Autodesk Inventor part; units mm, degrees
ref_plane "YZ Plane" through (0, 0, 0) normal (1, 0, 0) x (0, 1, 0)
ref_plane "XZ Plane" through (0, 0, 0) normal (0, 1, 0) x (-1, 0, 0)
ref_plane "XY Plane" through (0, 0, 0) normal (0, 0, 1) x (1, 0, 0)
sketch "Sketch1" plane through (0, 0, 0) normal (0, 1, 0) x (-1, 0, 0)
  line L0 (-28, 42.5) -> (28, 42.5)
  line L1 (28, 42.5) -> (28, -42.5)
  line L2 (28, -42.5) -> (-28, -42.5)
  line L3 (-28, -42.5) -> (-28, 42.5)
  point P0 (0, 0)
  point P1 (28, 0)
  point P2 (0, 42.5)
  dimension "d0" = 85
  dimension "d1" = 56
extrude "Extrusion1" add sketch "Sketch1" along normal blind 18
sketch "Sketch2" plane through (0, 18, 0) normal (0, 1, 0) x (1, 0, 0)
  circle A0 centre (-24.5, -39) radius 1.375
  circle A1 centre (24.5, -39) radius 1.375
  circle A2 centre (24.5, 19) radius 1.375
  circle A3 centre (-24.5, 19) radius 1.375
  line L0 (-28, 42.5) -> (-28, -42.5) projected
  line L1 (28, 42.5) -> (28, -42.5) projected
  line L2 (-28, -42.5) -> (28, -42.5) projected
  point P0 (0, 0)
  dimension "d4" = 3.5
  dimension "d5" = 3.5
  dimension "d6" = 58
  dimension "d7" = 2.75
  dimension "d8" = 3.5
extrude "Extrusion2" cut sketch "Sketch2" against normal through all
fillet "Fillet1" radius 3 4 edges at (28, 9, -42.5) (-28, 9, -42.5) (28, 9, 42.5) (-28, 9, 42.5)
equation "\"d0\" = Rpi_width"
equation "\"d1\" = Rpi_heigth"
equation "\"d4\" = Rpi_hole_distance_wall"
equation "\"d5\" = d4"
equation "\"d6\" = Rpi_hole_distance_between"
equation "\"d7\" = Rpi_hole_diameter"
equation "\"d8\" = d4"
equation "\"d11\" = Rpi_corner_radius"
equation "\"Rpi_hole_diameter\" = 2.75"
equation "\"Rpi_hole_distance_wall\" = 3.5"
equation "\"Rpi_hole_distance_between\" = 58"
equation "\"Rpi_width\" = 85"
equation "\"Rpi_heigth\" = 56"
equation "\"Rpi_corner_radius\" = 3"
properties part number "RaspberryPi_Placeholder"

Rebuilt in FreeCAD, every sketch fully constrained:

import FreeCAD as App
import Part
import Sketcher
from FreeCAD import Vector
Q = App.Units.Quantity


def edges_at(feature, points):
    """Names of the edges that pass closest to the given points."""
    edges = feature.Shape.Edges
    near = lambda p: min(range(len(edges)), key=lambda i: edges[i].distToShape(Part.Vertex(*p))[0])
    return sorted({f"Edge{near(p) + 1}" for p in points})


def add_polygon(sketch, points):
    """Adds a closed chain of lines whose ends are joined by coincident constraints."""
    first, n = sketch.GeometryCount, len(points)
    for a, b in zip(points, points[1:] + points[:1]):
        sketch.addGeometry(Part.LineSegment(App.Vector(*a, 0), App.Vector(*b, 0)), False)
    for i in range(n):
        sketch.addConstraint(Sketcher.Constraint("Coincident", first + i, 2, first + (i + 1) % n, 1))

doc = App.newDocument("Part")
body = doc.addObject("PartDesign::Body", "Body")

# Sketch on XZ plane
sketch1 = body.newObject("Sketcher::SketchObject", "Sketch")
sketch1.AttachmentSupport = (doc.getObject("XZ_Plane"), [""])
sketch1.MapMode = "FlatFace"
add_polygon(sketch1, [(-28, 42), (28, 42), (28, -42), (-28, -42)])  # lines 0-3
sketch1.addConstraint([
    Sketcher.Constraint("Horizontal", 0),
    Sketcher.Constraint("Vertical", 1),
    Sketcher.Constraint("Horizontal", 2),
    Sketcher.Constraint("Vertical", 3),
    Sketcher.Constraint("Symmetric", 0, 2, 2, 2, -1, 1),
    Sketcher.Constraint("DistanceX", 0, 1, 0, 2, Q("56 mm")),
    Sketcher.Constraint("DistanceY", 1, 2, 1, 1, Q("85 mm")),
])
pad1 = body.newObject("PartDesign::Pad", "Pad")
pad1.Profile = sketch1
pad1.Length = 18
pad1.Reversed = True

# Sketch on XZ plane
sketch2 = body.newObject("Sketcher::SketchObject", "Sketch001")
sketch2.AttachmentSupport = (doc.getObject("XZ_Plane"), [""])
sketch2.MapMode = "FlatFace"
sketch2.AttachmentOffset = App.Placement(Vector(0, 0, -18), App.Rotation())
sketch2.addGeometry([
    Part.Circle(Vector(-24.5, 39, 0), Vector(0, 0, 1), 1.4),
    Part.Circle(Vector(24.5, 39, 0), Vector(0, 0, 1), 1.4),
    Part.Circle(Vector(24.5, -19, 0), Vector(0, 0, 1), 1.4),
    Part.Circle(Vector(-24.5, -19, 0), Vector(0, 0, 1), 1.4),
], False)
sketch2.addConstraint([
    Sketcher.Constraint("Equal", 0, 1),
    Sketcher.Constraint("Equal", 1, 2),
    Sketcher.Constraint("Equal", 2, 3),
    Sketcher.Constraint("Symmetric", 0, 3, 1, 3, -2),
    Sketcher.Constraint("Symmetric", 2, 3, 3, 3, -2),
    Sketcher.Constraint("Vertical", 1, 3, 2, 3),
    Sketcher.Constraint("Diameter", 0, Q("2.75 mm")),
    Sketcher.Constraint("DistanceY", 2, 3, 1, 3, Q("58 mm")),
    Sketcher.Constraint("DistanceY", -1, 1, 0, 3, Q("39 mm")),
    Sketcher.Constraint("DistanceX", 0, 3, 1, 3, Q("49 mm")),
])
pocket1 = body.newObject("PartDesign::Pocket", "Pocket")
pocket1.Profile = sketch2
pocket1.Type = "ThroughAll"
pocket1.Reversed = True
doc.recompute()

fillet = body.newObject("PartDesign::Fillet", "Fillet")
fillet.Base = (pocket1, edges_at(pocket1, [
    (28, 9, -42.5),
    (-28, 9, -42.5),
    (28, 9, 42.5),
    (-28, 9, 42.5),
]))
fillet.Radius = 3

doc.recompute()
